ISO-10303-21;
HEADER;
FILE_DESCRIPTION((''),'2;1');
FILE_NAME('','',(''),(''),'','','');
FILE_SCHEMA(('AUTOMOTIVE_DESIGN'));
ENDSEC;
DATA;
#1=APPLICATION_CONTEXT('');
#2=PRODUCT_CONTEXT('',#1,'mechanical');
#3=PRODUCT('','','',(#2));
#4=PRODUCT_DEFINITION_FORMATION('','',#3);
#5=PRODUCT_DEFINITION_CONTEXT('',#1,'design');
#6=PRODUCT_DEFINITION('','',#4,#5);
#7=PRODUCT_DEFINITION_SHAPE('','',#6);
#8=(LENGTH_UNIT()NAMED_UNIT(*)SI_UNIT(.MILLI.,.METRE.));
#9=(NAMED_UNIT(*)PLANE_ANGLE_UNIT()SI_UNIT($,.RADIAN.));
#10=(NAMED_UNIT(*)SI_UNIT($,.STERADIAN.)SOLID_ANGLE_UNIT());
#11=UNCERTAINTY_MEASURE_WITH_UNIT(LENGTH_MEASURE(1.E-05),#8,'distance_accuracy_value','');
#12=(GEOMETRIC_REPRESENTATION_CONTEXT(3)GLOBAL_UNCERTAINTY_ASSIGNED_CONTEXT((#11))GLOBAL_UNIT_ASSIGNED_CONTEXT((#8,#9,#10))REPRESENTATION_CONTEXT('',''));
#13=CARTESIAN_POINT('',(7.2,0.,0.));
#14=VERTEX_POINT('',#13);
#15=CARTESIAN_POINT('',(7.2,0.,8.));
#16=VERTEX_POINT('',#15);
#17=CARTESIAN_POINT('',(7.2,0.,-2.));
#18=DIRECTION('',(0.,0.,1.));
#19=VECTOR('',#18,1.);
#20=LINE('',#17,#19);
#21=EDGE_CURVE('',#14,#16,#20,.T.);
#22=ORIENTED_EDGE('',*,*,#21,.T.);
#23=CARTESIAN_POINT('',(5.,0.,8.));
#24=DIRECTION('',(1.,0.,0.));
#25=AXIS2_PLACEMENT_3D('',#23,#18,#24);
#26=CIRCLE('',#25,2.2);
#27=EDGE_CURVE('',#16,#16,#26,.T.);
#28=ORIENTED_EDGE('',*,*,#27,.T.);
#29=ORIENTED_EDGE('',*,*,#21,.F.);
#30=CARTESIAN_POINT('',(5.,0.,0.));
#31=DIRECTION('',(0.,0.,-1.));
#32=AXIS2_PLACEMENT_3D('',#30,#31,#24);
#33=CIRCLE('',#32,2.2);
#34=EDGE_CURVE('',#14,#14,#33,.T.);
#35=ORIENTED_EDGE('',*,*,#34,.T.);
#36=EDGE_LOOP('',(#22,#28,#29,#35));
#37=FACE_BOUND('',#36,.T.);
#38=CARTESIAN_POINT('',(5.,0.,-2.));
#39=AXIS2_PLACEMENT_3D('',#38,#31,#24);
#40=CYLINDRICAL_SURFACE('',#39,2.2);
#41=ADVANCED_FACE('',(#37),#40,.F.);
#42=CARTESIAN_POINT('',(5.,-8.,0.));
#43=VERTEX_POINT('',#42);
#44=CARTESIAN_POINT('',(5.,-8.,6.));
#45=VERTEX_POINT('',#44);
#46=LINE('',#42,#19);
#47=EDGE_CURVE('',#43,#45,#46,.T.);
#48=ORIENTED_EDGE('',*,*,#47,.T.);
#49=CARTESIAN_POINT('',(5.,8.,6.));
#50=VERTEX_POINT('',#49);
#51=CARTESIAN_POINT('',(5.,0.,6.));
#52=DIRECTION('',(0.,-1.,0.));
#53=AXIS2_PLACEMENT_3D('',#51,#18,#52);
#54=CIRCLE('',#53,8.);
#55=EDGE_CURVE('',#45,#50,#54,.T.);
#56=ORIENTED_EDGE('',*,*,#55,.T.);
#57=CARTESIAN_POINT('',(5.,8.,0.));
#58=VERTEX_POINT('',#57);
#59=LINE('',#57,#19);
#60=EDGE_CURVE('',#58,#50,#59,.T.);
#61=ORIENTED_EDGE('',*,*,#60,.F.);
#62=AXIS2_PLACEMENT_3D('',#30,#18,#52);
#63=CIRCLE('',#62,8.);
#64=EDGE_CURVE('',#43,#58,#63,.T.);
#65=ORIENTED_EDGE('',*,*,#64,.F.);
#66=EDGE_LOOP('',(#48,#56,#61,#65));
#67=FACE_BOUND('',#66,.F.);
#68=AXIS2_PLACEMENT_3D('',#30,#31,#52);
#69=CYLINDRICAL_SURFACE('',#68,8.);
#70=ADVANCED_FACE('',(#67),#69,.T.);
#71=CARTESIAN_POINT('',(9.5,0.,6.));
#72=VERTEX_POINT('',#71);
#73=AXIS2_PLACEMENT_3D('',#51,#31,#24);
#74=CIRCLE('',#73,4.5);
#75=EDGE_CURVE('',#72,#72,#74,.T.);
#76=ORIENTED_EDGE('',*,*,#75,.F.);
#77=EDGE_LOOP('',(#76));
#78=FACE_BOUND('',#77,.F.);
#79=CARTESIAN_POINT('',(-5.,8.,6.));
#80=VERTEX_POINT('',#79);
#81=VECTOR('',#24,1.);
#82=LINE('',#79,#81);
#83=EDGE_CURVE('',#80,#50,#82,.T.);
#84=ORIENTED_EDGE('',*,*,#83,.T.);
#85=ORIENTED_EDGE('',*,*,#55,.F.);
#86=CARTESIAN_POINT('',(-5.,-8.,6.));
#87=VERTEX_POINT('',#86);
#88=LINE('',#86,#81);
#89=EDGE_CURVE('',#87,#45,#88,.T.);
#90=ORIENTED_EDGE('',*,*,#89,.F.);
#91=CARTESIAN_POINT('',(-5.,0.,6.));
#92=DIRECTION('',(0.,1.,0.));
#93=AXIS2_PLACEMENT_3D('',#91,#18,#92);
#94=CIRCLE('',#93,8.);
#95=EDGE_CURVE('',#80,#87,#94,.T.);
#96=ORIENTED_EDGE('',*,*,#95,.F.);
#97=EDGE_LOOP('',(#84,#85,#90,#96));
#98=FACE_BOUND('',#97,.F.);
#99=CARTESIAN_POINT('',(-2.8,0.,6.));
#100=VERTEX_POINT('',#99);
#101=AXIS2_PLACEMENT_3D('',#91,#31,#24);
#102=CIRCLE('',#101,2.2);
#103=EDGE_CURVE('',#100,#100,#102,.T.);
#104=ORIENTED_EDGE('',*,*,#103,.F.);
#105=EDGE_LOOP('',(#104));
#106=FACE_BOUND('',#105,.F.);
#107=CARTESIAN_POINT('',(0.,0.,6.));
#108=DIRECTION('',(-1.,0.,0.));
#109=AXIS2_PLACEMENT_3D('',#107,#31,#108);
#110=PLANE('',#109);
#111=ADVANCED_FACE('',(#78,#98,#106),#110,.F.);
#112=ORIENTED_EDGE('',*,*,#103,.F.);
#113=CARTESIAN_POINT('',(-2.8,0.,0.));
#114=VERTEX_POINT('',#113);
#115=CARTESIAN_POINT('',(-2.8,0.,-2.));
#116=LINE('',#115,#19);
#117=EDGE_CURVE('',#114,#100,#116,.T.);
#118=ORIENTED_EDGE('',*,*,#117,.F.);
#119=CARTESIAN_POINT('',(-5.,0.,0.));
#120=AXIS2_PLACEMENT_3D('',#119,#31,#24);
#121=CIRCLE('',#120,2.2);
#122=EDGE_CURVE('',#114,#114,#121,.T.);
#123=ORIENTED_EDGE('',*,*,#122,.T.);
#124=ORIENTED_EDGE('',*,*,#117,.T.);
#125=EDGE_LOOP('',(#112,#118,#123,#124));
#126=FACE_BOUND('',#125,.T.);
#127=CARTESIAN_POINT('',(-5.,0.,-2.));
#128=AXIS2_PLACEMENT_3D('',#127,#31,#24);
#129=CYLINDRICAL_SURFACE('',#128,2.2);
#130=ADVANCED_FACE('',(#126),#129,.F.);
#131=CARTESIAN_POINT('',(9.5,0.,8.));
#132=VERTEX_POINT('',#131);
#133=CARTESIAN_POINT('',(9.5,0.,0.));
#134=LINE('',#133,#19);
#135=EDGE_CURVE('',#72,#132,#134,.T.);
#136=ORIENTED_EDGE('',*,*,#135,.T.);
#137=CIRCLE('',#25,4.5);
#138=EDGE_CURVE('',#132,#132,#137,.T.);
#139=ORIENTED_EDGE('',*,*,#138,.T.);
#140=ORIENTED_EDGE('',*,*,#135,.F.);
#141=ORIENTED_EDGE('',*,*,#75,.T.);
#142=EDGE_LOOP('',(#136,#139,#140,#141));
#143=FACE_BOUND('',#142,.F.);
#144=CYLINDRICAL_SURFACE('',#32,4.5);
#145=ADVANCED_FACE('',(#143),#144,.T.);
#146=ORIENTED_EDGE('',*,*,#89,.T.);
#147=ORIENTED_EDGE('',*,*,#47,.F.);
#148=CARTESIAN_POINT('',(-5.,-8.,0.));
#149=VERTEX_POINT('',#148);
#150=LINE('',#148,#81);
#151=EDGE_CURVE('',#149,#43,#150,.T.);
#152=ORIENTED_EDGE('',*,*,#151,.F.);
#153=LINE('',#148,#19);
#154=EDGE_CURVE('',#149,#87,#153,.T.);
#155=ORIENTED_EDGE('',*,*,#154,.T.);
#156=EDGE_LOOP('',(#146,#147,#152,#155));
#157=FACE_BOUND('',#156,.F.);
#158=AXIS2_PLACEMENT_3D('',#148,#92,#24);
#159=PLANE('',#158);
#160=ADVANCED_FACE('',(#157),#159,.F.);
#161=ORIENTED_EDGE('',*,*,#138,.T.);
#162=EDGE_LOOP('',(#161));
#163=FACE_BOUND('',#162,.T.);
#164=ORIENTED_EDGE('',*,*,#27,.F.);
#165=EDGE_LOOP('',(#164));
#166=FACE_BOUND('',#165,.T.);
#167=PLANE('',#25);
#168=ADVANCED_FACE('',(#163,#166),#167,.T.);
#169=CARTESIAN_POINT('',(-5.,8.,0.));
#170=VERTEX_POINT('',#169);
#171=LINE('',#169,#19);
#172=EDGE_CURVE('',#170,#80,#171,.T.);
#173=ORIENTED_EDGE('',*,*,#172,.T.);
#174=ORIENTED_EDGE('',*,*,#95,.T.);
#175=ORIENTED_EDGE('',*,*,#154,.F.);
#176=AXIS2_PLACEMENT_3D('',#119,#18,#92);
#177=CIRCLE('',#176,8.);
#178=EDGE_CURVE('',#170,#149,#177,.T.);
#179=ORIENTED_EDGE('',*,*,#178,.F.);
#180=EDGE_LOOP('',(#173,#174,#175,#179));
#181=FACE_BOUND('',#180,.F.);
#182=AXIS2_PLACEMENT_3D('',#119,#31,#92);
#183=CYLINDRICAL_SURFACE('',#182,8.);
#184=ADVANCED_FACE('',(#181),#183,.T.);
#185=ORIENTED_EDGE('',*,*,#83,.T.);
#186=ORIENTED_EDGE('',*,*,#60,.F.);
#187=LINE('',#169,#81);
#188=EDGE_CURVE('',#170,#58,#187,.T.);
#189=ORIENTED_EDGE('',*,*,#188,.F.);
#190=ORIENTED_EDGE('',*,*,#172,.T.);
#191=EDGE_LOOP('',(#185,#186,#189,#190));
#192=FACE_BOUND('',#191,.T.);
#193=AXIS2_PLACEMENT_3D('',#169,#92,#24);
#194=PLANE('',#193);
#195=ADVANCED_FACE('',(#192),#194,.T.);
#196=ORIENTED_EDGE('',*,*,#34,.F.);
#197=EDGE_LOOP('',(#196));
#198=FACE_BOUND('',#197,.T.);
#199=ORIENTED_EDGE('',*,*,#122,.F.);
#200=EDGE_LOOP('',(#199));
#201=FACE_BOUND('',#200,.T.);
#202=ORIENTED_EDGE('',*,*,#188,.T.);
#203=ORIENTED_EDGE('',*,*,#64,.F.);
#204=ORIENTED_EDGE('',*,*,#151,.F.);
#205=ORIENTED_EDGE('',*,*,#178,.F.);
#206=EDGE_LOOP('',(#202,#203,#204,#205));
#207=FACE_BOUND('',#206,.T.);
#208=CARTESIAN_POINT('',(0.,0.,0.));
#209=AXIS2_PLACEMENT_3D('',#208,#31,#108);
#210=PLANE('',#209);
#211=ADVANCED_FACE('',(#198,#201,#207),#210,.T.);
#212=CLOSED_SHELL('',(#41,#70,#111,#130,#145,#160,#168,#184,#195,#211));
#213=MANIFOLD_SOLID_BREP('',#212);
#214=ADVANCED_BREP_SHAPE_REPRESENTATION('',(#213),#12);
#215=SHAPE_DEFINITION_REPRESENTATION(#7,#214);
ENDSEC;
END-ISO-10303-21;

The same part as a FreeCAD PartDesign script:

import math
import FreeCAD as App
import Part
import Sketcher
from FreeCAD import Vector
Q = App.Units.Quantity

doc = App.newDocument("Part")
params = doc.addObject("Spreadsheet::Sheet", "Params")
for row, (alias, value) in enumerate([
    ("sketch1_diameter", "4.4 mm"),
    ("pad1_length", "10 mm"),
    ("sketch2_diameter", "4.4 mm"),
    ("pad2_length", "10 mm"),
    ("sketch3_radius", "8 mm"),
    ("sketch3_width", "10 mm"),
    ("pad3_length", "6 mm"),
    ("sketch4_diameter", "9 mm"),
    ("pad4_length", "8 mm"),
], start=1):
    params.set(f"A{row}", alias)
    params.set(f"B{row}", "=" + value)
    params.setAlias(f"B{row}", alias)

body = doc.addObject("PartDesign::Body", "Body")

# Sketch on XY plane
sketch1 = body.newObject("Sketcher::SketchObject", "Sketch")
sketch1.AttachmentSupport = (doc.getObject("XY_Plane"), [""])
sketch1.MapMode = "FlatFace"
sketch1.AttachmentOffset = App.Placement(Vector(0, 0, -2), App.Rotation())
sketch1.addGeometry(Part.Circle(Vector(5, 0, 0), Vector(0, 0, 1), 2.2), False)
sketch1.addConstraint([
    Sketcher.Constraint("PointOnObject", 0, 3, -1),
    Sketcher.Constraint("Diameter", 0, Q("4.4 mm")),
    Sketcher.Constraint("DistanceX", -1, 1, 0, 3, Q("5 mm")),
])
sketch1.setExpression("Constraints[1]", "Params.sketch1_diameter")
pad1 = body.newObject("PartDesign::Pad", "Pad")
pad1.Profile = sketch1
pad1.setExpression("Length", "Params.pad1_length")
body2 = doc.addObject("PartDesign::Body", "Body001")
body2.AllowCompound = True

# Sketch on XY plane
sketch2 = body2.newObject("Sketcher::SketchObject", "Sketch001")
sketch2.AttachmentSupport = (doc.getObject("XY_Plane001"), [""])
sketch2.MapMode = "FlatFace"
sketch2.AttachmentOffset = App.Placement(Vector(0, 0, -2), App.Rotation())
sketch2.addGeometry(Part.Circle(Vector(-5, 0, 0), Vector(0, 0, 1), 2.2), False)
sketch2.addConstraint([
    Sketcher.Constraint("PointOnObject", 0, 3, -1),
    Sketcher.Constraint("Diameter", 0, Q("4.4 mm")),
    Sketcher.Constraint("DistanceX", 0, 3, -1, 1, Q("5 mm")),
])
sketch2.setExpression("Constraints[1]", "Params.sketch2_diameter")
pad2 = body2.newObject("PartDesign::Pad", "Pad001")
pad2.Profile = sketch2
pad2.setExpression("Length", "Params.pad2_length")
doc.recompute()

boolean = body2.newObject("PartDesign::Boolean", "Boolean")
boolean.Type = "Fuse"
boolean.addObjects([body])
body3 = doc.addObject("PartDesign::Body", "Body002")

# Sketch on XY plane
sketch3 = body3.newObject("Sketcher::SketchObject", "Sketch002")
sketch3.AttachmentSupport = (doc.getObject("XY_Plane002"), [""])
sketch3.MapMode = "FlatFace"
sketch3.addGeometry([
    Part.LineSegment(Vector(5, 8, 0), Vector(-5, 8, 0)),
    Part.ArcOfCircle(Part.Circle(Vector(-5, 0, 0), Vector(0, 0, 1), 8), math.radians(90), math.radians(270)),
    Part.LineSegment(Vector(-5, -8, 0), Vector(5, -8, 0)),
    Part.ArcOfCircle(Part.Circle(Vector(5, 0, 0), Vector(0, 0, 1), 8), math.radians(-90), math.radians(90)),
], False)
sketch3.addConstraint([
    Sketcher.Constraint("Tangent", 0, 2, 1, 1),
    Sketcher.Constraint("Tangent", 1, 2, 2, 1),
    Sketcher.Constraint("Tangent", 2, 2, 3, 1),
    Sketcher.Constraint("Tangent", 3, 2, 0, 1),
    Sketcher.Constraint("Horizontal", 0),
    Sketcher.Constraint("Horizontal", 2),
    Sketcher.Constraint("Symmetric", 1, 3, 3, 3, -1, 1),
    Sketcher.Constraint("Radius", 1, Q("8 mm")),
    Sketcher.Constraint("DistanceX", 0, 2, 0, 1, Q("10 mm")),
])
sketch3.setExpression("Constraints[7]", "Params.sketch3_radius")
sketch3.setExpression("Constraints[8]", "Params.sketch3_width")
pad3 = body3.newObject("PartDesign::Pad", "Pad002")
pad3.Profile = sketch3
pad3.setExpression("Length", "Params.pad3_length")
body4 = doc.addObject("PartDesign::Body", "Body003")

# Sketch on XY plane
sketch4 = body4.newObject("Sketcher::SketchObject", "Sketch003")
sketch4.AttachmentSupport = (doc.getObject("XY_Plane003"), [""])
sketch4.MapMode = "FlatFace"
sketch4.addGeometry(Part.Circle(Vector(5, 0, 0), Vector(0, 0, 1), 4.5), False)
sketch4.addConstraint([
    Sketcher.Constraint("PointOnObject", 0, 3, -1),
    Sketcher.Constraint("Diameter", 0, Q("9 mm")),
    Sketcher.Constraint("DistanceX", -1, 1, 0, 3, Q("5 mm")),
])
sketch4.setExpression("Constraints[1]", "Params.sketch4_diameter")
pad4 = body4.newObject("PartDesign::Pad", "Pad003")
pad4.Profile = sketch4
pad4.setExpression("Length", "Params.pad4_length")
doc.recompute()

boolean2 = body4.newObject("PartDesign::Boolean", "Boolean001")
boolean2.Type = "Fuse"
boolean2.addObjects([body3])
doc.recompute()

boolean3 = body4.newObject("PartDesign::Boolean", "Boolean002")
boolean3.Type = "Cut"
boolean3.addObjects([body2])

doc.recompute()
